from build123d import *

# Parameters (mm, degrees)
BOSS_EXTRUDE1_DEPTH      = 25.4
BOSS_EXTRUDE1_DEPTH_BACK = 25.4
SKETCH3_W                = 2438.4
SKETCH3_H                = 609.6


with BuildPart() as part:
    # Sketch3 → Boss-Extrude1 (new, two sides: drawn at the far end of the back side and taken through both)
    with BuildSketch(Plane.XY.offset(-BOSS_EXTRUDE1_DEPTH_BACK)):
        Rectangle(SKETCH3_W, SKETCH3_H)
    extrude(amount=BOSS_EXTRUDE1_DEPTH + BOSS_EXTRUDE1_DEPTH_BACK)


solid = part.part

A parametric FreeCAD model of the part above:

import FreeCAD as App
import Part
import Sketcher

V = App.Vector
Q = App.Units.Quantity


def add_polygon(sketch, points):
    """Adds a closed chain of lines whose ends are joined by coincident constraints."""
    first, n = sketch.GeometryCount, len(points)
    for a, b in zip(points, points[1:] + points[:1]):
        sketch.addGeometry(Part.LineSegment(App.Vector(*a, 0), App.Vector(*b, 0)), False)
    for i in range(n):
        sketch.addConstraint(Sketcher.Constraint("Coincident", first + i, 2, first + (i + 1) % n, 1))

doc = App.newDocument("Part")
params = doc.addObject("Spreadsheet::Sheet", "Params")
for row, (alias, value) in enumerate([
    ("sketch1_width", "96 in"),
    ("sketch1_height", "24 in"),
    ("pad1_length", "1 in"),
    ("pad1_length2", "1 in"),
], start=1):
    params.set(f"A{row}", alias)
    params.set(f"B{row}", "=" + value)
    params.setAlias(f"B{row}", alias)

body = doc.addObject("PartDesign::Body", "Body")

sketch1 = body.newObject("Sketcher::SketchObject", "Sketch")
sketch1.AttachmentSupport = (doc.getObject("XY_Plane"), [""])
sketch1.MapMode = "FlatFace"
add_polygon(sketch1, [(-1219.2, 304.8), (-1219.2, -304.8), (1219.2, -304.8), (1219.2, 304.8)])
sketch1.addConstraint(Sketcher.Constraint("Vertical", 0))
sketch1.addConstraint(Sketcher.Constraint("Horizontal", 1))
sketch1.addConstraint(Sketcher.Constraint("Vertical", 2))
sketch1.addConstraint(Sketcher.Constraint("Horizontal", 3))
sketch1.addConstraint(Sketcher.Constraint("Symmetric", 0, 2, 2, 2, -1, 1))
sketch1.addConstraint(Sketcher.Constraint("DistanceX", 1, 1, 1, 2, Q("96 in")))
sketch1.addConstraint(Sketcher.Constraint("DistanceY", 0, 2, 0, 1, Q("24 in")))
sketch1.setExpression("Constraints[9]", "Params.sketch1_width")
sketch1.setExpression("Constraints[10]", "Params.sketch1_height")
pad1 = body.newObject("PartDesign::Pad", "Pad")
pad1.Profile = sketch1
pad1.Type = "TwoLengths"
pad1.setExpression("Length", "Params.pad1_length")
pad1.setExpression("Length2", "Params.pad1_length2")

doc.recompute()
